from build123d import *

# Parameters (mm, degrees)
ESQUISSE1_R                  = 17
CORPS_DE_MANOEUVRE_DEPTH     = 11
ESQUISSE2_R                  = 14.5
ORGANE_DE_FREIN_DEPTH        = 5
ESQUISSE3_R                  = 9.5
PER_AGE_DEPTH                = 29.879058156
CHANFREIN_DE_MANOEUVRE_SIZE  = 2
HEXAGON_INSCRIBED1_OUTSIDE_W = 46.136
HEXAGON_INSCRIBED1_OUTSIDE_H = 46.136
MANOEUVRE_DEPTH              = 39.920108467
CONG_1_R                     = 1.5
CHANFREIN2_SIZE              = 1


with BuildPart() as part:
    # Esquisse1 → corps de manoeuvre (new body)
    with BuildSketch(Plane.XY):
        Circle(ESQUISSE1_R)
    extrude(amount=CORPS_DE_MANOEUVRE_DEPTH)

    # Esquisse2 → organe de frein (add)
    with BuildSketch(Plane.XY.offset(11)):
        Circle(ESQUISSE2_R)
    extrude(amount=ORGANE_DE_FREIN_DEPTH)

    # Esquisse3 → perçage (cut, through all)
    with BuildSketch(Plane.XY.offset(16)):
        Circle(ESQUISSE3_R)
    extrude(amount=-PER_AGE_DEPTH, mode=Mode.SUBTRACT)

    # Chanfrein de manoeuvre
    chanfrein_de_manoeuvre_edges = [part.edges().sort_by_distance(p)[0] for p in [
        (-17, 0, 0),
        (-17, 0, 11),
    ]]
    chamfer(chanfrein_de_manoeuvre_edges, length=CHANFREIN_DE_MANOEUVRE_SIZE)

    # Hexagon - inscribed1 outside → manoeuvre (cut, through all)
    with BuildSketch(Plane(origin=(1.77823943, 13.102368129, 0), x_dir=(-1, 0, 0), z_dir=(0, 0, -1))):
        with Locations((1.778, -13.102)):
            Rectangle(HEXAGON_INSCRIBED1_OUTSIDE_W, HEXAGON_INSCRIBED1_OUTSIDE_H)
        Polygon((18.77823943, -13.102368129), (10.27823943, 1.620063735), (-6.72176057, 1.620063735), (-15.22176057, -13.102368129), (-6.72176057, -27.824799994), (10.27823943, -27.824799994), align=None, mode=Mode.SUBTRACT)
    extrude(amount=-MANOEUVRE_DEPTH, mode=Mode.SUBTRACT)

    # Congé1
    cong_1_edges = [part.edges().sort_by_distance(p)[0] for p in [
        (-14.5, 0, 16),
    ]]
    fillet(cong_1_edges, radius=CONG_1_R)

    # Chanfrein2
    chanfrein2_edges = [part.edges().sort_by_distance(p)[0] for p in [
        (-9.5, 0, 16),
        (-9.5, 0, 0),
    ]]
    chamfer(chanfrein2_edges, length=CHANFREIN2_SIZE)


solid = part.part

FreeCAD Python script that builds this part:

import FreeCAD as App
import Part
import Sketcher
Q = App.Units.Quantity


def edges_at(feature, points):
    """Names of the edges that pass closest to the given points."""
    edges = feature.Shape.Edges
    near = lambda p: min(range(len(edges)), key=lambda i: edges[i].distToShape(Part.Vertex(*p))[0])
    return sorted({f"Edge{near(p) + 1}" for p in points})


def add_polygon(sketch, points):
    """Adds a closed chain of lines whose ends are joined by coincident constraints."""
    first, n = sketch.GeometryCount, len(points)
    for a, b in zip(points, points[1:] + points[:1]):
        sketch.addGeometry(Part.LineSegment(App.Vector(*a, 0), App.Vector(*b, 0)), False)
    for i in range(n):
        sketch.addConstraint(Sketcher.Constraint("Coincident", first + i, 2, first + (i + 1) % n, 1))

doc = App.newDocument("Part")
body = doc.addObject("PartDesign::Body", "Body")

# Sketch on XY plane
sketch1 = body.newObject("Sketcher::SketchObject", "Sketch")
sketch1.AttachmentSupport = (doc.getObject("XY_Plane"), [""])
sketch1.MapMode = "FlatFace"
sketch1.addGeometry(Part.Circle(App.Vector(0, 0, 0), App.Vector(0, 0, 1), 17), False)
sketch1.addConstraint([
    Sketcher.Constraint("Coincident", 0, 3, -1, 1),
    Sketcher.Constraint("Diameter", 0, Q("34 mm")),
])
pad1 = body.newObject("PartDesign::Pad", "Pad")
pad1.Profile = sketch1
pad1.Length = 11

# Sketch on XY plane
sketch2 = body.newObject("Sketcher::SketchObject", "Sketch001")
sketch2.AttachmentSupport = (doc.getObject("XY_Plane"), [""])
sketch2.MapMode = "FlatFace"
sketch2.AttachmentOffset = App.Placement(App.Vector(0, 0, 11), App.Rotation())
sketch2.addGeometry(Part.Circle(App.Vector(0, 0, 0), App.Vector(0, 0, 1), 14), False)
sketch2.addConstraint([
    Sketcher.Constraint("Coincident", 0, 3, -1, 1),
    Sketcher.Constraint("Diameter", 0, Q("29 mm")),
])
pad2 = body.newObject("PartDesign::Pad", "Pad001")
pad2.Profile = sketch2
pad2.Length = 5

# Sketch on XY plane
sketch3 = body.newObject("Sketcher::SketchObject", "Sketch002")
sketch3.AttachmentSupport = (doc.getObject("XY_Plane"), [""])
sketch3.MapMode = "FlatFace"
sketch3.AttachmentOffset = App.Placement(App.Vector(0, 0, 16), App.Rotation())
sketch3.addGeometry(Part.Circle(App.Vector(0, 0, 0), App.Vector(0, 0, 1), 10), False)
sketch3.addConstraint([
    Sketcher.Constraint("Coincident", 0, 3, -1, 1),
    Sketcher.Constraint("Diameter", 0, Q("19 mm")),
])
pocket1 = body.newObject("PartDesign::Pocket", "Pocket")
pocket1.Profile = sketch3
pocket1.Type = "ThroughAll"
doc.recompute()

chamfer = body.newObject("PartDesign::Chamfer", "Chamfer")
chamfer.Base = (pocket1, edges_at(pocket1, [(-17, 0, 0), (-17, 0, 11)]))
chamfer.Size = 2

# Sketch on XY plane
sketch4 = body.newObject("Sketcher::SketchObject", "Sketch003")
sketch4.AttachmentSupport = (doc.getObject("XY_Plane"), [""])
sketch4.MapMode = "FlatFace"
add_polygon(sketch4, [(23, 23), (23, -23), (-23, -23), (-23, 23)])  # lines 0-3
add_polygon(sketch4, [(-8, 15), (-17, 0), (-8, -15), (8, -15), (17, 0), (8, 15)])  # lines 4-9
sketch4.addConstraint([
    Sketcher.Constraint("Vertical", 0),
    Sketcher.Constraint("Horizontal", 1),
    Sketcher.Constraint("Vertical", 2),
    Sketcher.Constraint("Horizontal", 3),
    Sketcher.Constraint("Horizontal", 6),
    Sketcher.Constraint("Horizontal", 9),
    Sketcher.Constraint("Symmetric", 4, 2, 7, 2, -1, 1),
    Sketcher.Constraint("Symmetric", 5, 2, 8, 2, -1, 1),
    Sketcher.Constraint("PointOnObject", 4, 2, -1),
    Sketcher.Constraint("Parallel", 4, 7),
    Sketcher.Constraint("Vertical", 6, 2, 8, 2),
    Sketcher.Constraint("Equal", 3, 0),
    Sketcher.Constraint("DistanceX", 6, 1, 6, 2, Q("17 mm")),
    Sketcher.Constraint("Angle", 4, Q("-120 deg")),
    Sketcher.Constraint("Distance", 4, Q("17 mm")),
    Sketcher.Constraint("DistanceX", 1, 2, 1, 1, Q("46.136 mm")),
    Sketcher.Constraint("DistanceY", 1, 2, 5, 2, Q("8.3452 mm")),
    Sketcher.Constraint("DistanceX", -1, 1, 0, 2, Q("23.068239 mm")),
])
pocket2 = body.newObject("PartDesign::Pocket", "Pocket001")
pocket2.Profile = sketch4
pocket2.Type = "ThroughAll"
pocket2.Reversed = True
doc.recompute()

fillet = body.newObject("PartDesign::Fillet", "Fillet")
fillet.Base = (pocket2, edges_at(pocket2, [(-14.5, 0, 16)]))
fillet.Radius = 1.5
doc.recompute()

chamfer2 = body.newObject("PartDesign::Chamfer", "Chamfer001")
chamfer2.Base = (fillet, edges_at(fillet, [(-9.5, 0, 16), (-9.5, 0, 0)]))
chamfer2.Size = 1

doc.recompute()
